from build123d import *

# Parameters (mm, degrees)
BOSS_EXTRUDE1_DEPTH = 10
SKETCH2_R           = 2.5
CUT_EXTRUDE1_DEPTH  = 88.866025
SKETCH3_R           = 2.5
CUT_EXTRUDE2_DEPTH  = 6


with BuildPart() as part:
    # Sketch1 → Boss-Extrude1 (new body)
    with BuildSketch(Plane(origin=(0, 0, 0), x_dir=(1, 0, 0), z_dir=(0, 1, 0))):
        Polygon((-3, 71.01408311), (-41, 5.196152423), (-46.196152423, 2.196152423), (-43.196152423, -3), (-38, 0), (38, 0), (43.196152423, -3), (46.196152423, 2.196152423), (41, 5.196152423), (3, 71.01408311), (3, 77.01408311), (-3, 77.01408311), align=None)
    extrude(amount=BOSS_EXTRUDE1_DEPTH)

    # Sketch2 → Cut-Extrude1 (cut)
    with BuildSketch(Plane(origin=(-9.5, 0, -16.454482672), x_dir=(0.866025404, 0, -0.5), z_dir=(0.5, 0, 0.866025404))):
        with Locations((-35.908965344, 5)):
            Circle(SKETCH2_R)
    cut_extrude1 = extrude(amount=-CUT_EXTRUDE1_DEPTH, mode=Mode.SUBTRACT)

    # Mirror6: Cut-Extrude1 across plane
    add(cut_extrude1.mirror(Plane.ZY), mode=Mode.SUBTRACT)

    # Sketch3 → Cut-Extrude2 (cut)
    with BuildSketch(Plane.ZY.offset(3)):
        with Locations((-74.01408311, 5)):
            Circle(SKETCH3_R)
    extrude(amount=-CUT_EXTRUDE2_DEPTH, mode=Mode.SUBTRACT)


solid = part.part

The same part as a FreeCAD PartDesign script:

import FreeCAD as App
import Part
import Sketcher
from FreeCAD import Vector
Q = App.Units.Quantity

doc = App.newDocument("Part")
body = doc.addObject("PartDesign::Body", "Body")

sketch1 = body.newObject("Sketcher::SketchObject", "Sketch")
sketch1.AttachmentSupport = (doc.getObject("XZ_Plane"), [""])
sketch1.MapMode = "FlatFace"
sketch1.addGeometry(Part.LineSegment(Vector(-3, -71, 0), Vector(-41, -5, 0)), False)
sketch1.addGeometry(Part.LineSegment(Vector(-41, -5, 0), Vector(-46, -2, 0)), False)
sketch1.addGeometry(Part.LineSegment(Vector(-46, -2, 0), Vector(-43, 3, 0)), False)
sketch1.addGeometry(Part.LineSegment(Vector(-43, 3, 0), Vector(-38, 0, 0)), False)
sketch1.addGeometry(Part.LineSegment(Vector(-38, 0, 0), Vector(38, 0, 0)), False)
sketch1.addGeometry(Part.LineSegment(Vector(38, 0, 0), Vector(43, 3, 0)), False)
sketch1.addGeometry(Part.LineSegment(Vector(43, 3, 0), Vector(46, -2, 0)), False)
sketch1.addGeometry(Part.LineSegment(Vector(46, -2, 0), Vector(41, -5, 0)), False)
sketch1.addGeometry(Part.LineSegment(Vector(41, -5, 0), Vector(3, -71, 0)), False)
sketch1.addGeometry(Part.LineSegment(Vector(3, -71, 0), Vector(3, -77, 0)), False)
sketch1.addGeometry(Part.LineSegment(Vector(3, -77, 0), Vector(-3, -77, 0)), False)
sketch1.addGeometry(Part.LineSegment(Vector(-3, -77, 0), Vector(-3, -71, 0)), False)
sketch1.addConstraint(Sketcher.Constraint("Coincident", 0, 2, 1, 1))
sketch1.addConstraint(Sketcher.Constraint("Coincident", 1, 2, 2, 1))
sketch1.addConstraint(Sketcher.Constraint("Coincident", 2, 2, 3, 1))
sketch1.addConstraint(Sketcher.Constraint("Coincident", 3, 2, 4, 1))
sketch1.addConstraint(Sketcher.Constraint("Coincident", 4, 2, 5, 1))
sketch1.addConstraint(Sketcher.Constraint("Coincident", 5, 2, 6, 1))
sketch1.addConstraint(Sketcher.Constraint("Coincident", 6, 2, 7, 1))
sketch1.addConstraint(Sketcher.Constraint("Coincident", 7, 2, 8, 1))
sketch1.addConstraint(Sketcher.Constraint("Coincident", 8, 2, 9, 1))
sketch1.addConstraint(Sketcher.Constraint("Coincident", 9, 2, 10, 1))
sketch1.addConstraint(Sketcher.Constraint("Coincident", 10, 2, 11, 1))
sketch1.addConstraint(Sketcher.Constraint("Coincident", 11, 2, 0, 1))
sketch1.addConstraint(Sketcher.Constraint("Horizontal", 4))
sketch1.addConstraint(Sketcher.Constraint("Vertical", 9))
sketch1.addConstraint(Sketcher.Constraint("Horizontal", 10))
sketch1.addConstraint(Sketcher.Constraint("Vertical", 11))
sketch1.addConstraint(Sketcher.Constraint("Symmetric", 3, 2, 4, 2, -1, 1))
sketch1.addConstraint(Sketcher.Constraint("Symmetric", 2, 2, 5, 2, -2))
sketch1.addConstraint(Sketcher.Constraint("Symmetric", 1, 2, 6, 2, -2))
sketch1.addConstraint(Sketcher.Constraint("Symmetric", 0, 2, 7, 2, -2))
sketch1.addConstraint(Sketcher.Constraint("Symmetric", 8, 2, 11, 2, -2))
sketch1.addConstraint(Sketcher.Constraint("Perpendicular", 1, 2))
sketch1.addConstraint(Sketcher.Constraint("Perpendicular", 2, 3))
sketch1.addConstraint(Sketcher.Constraint("Perpendicular", 0, 5))
sketch1.addConstraint(Sketcher.Constraint("Equal", 10, 9))
sketch1.addConstraint(Sketcher.Constraint("Equal", 1, 2))
sketch1.addConstraint(Sketcher.Constraint("Equal", 2, 3))
sketch1.addConstraint(Sketcher.Constraint("DistanceX", 4, 1, 4, 2, 76.0))
sketch1.addConstraint(Sketcher.Constraint("DistanceX", 10, 2, 10, 1, 6.0))
sketch1.addConstraint(Sketcher.Constraint("Angle", 0, Q("120 deg")))
sketch1.addConstraint(Sketcher.Constraint("Distance", 0, 76.0))
pad1 = body.newObject("PartDesign::Pad", "Pad")
pad1.Profile = sketch1
pad1.Length = 10
pad1.Reversed = True

sketch2 = body.newObject("Sketcher::SketchObject", "Sketch001")
sketch2.Placement = App.Placement(Vector(-9.5, 0, -16.454483), App.Rotation(Vector(0.866025404, 0, -0.5), Vector(0, 1, 0), Vector(0.5, 0, 0.866025404), "ZXY"))
sketch2.addGeometry(Part.Circle(Vector(-35.9, 5, 0), Vector(0, 0, 1), 2.5), False)
sketch2.addConstraint(Sketcher.Constraint("Diameter", 0, 5.0))
sketch2.addConstraint(Sketcher.Constraint("DistanceY", -1, 1, 0, 3, 5.0))
sketch2.addConstraint(Sketcher.Constraint("DistanceX", 0, 3, -1, 1, 35.908965))
pocket1 = body.newObject("PartDesign::Pocket", "Pocket")
pocket1.Profile = sketch2
pocket1.Length = 88.866025
doc.recompute()

mirrored = body.newObject("PartDesign::Mirrored", "Mirrored")
mirrored.Originals = [pocket1]
mirrored.MirrorPlane = (doc.getObject("YZ_Plane"), [""])
body.Tip = mirrored

sketch3 = body.newObject("Sketcher::SketchObject", "Sketch002")
sketch3.AttachmentSupport = (doc.getObject("YZ_Plane"), [""])
sketch3.MapMode = "FlatFace"
sketch3.AttachmentOffset = App.Placement(Vector(0, 0, -3), App.Rotation())
sketch3.addGeometry(Part.Circle(Vector(5, -74, 0), Vector(0, 0, 1), 2.5), False)
sketch3.addConstraint(Sketcher.Constraint("Diameter", 0, 5.0))
sketch3.addConstraint(Sketcher.Constraint("DistanceX", -1, 1, 0, 3, 5.0))
sketch3.addConstraint(Sketcher.Constraint("DistanceY", 0, 3, -1, 1, 74.014083))
pocket2 = body.newObject("PartDesign::Pocket", "Pocket001")
pocket2.Profile = sketch3
pocket2.Length = 6
pocket2.Reversed = True

doc.recompute()
